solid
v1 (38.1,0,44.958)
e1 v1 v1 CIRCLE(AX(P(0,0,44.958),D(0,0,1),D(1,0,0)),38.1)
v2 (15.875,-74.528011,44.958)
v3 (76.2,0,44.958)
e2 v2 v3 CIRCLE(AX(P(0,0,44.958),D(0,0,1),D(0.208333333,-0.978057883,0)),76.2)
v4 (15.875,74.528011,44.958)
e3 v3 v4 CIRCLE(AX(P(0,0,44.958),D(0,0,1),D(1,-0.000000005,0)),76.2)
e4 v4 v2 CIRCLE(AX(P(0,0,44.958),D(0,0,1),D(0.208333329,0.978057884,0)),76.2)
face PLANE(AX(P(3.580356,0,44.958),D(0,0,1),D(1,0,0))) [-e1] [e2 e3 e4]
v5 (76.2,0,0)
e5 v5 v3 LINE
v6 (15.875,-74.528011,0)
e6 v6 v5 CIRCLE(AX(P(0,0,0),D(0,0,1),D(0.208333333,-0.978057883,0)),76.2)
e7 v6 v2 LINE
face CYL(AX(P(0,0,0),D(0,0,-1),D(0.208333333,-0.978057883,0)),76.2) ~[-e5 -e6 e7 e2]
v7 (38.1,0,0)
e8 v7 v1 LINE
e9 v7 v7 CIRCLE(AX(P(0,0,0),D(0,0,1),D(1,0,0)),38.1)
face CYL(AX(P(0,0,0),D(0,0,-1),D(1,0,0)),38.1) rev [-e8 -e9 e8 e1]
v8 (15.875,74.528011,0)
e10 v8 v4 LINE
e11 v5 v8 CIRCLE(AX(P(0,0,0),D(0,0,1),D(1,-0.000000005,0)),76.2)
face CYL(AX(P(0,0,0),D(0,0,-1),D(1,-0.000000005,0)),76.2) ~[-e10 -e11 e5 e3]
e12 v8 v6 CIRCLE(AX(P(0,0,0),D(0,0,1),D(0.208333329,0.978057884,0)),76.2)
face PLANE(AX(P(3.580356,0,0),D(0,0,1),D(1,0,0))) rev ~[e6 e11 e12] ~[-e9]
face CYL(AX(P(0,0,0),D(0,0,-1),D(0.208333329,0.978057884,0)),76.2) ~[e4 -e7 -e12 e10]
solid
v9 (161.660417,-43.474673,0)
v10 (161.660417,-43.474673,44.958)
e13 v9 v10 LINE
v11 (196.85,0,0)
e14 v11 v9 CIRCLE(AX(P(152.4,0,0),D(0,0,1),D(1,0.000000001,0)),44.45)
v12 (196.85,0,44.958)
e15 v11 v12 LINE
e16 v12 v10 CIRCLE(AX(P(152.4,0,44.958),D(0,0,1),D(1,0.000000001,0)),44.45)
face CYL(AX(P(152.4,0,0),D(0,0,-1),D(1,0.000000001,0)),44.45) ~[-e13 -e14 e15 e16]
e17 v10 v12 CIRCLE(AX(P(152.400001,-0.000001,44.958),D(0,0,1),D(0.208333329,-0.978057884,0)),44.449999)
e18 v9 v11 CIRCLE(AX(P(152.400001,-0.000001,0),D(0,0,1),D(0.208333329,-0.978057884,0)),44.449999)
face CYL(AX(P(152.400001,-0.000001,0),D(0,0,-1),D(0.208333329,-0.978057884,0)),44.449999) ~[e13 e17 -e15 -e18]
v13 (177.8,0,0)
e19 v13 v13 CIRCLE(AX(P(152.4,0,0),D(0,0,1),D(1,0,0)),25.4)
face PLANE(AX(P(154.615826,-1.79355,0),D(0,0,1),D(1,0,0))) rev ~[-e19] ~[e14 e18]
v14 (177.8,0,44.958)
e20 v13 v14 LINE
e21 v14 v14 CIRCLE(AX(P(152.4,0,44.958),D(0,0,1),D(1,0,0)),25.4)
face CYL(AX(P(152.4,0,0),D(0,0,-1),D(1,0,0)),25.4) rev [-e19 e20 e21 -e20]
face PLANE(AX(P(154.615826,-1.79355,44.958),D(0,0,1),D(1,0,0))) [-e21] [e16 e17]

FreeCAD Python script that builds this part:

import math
import FreeCAD as App
import Part
import Sketcher
Q = App.Units.Quantity

doc = App.newDocument("Part")
body = doc.addObject("PartDesign::Body", "Body")
body.AllowCompound = True

sketch1 = body.newObject("Sketcher::SketchObject", "Sketch")
sketch1.AttachmentSupport = (doc.getObject("XY_Plane"), [""])
sketch1.MapMode = "FlatFace"
sketch1.addGeometry(Part.ArcOfCircle(Part.Circle(App.Vector(0, 0, 0), App.Vector(0, 0, 1), 76), math.radians(-78), math.radians(0)), False)
sketch1.addGeometry(Part.ArcOfCircle(Part.Circle(App.Vector(0, 0, 0), App.Vector(0, 0, 1), 76), math.radians(0), math.radians(78)), False)
sketch1.addGeometry(Part.ArcOfCircle(Part.Circle(App.Vector(0, 0, 0), App.Vector(0, 0, 1), 76), math.radians(78), math.radians(282)), False)
sketch1.addGeometry(Part.Circle(App.Vector(0, 0, 0), App.Vector(0, 0, 1), 38), False)
sketch1.addGeometry(Part.ArcOfCircle(Part.Circle(App.Vector(152, 0, 0), App.Vector(0, 0, 1), 44), math.radians(0), math.radians(282)), False)
sketch1.addGeometry(Part.ArcOfCircle(Part.Circle(App.Vector(152, 0, 0), App.Vector(0, 0, 1), 44), math.radians(-78), math.radians(0)), False)
sketch1.addGeometry(Part.Circle(App.Vector(152, 0, 0), App.Vector(0, 0, 1), 25), False)
sketch1.addConstraint(Sketcher.Constraint("Tangent", 0, 2, 1, 1))
sketch1.addConstraint(Sketcher.Constraint("Tangent", 1, 2, 2, 1))
sketch1.addConstraint(Sketcher.Constraint("Tangent", 2, 2, 0, 1))
sketch1.addConstraint(Sketcher.Constraint("Tangent", 4, 1, 5, 2))
sketch1.addConstraint(Sketcher.Constraint("Coincident", 5, 1, 4, 2))
sketch1.addConstraint(Sketcher.Constraint("Coincident", 0, 3, -1, 1))
sketch1.addConstraint(Sketcher.Constraint("Coincident", 3, 3, -1, 1))
sketch1.addConstraint(Sketcher.Constraint("Coincident", 6, 3, 4, 3))
sketch1.addConstraint(Sketcher.Constraint("PointOnObject", 4, 3, -1))
sketch1.addConstraint(Sketcher.Constraint("PointOnObject", 0, 2, -1))
sketch1.addConstraint(Sketcher.Constraint("PointOnObject", 4, 1, -1))
sketch1.addConstraint(Sketcher.Constraint("Vertical", 1, 2, 2, 2))
sketch1.addConstraint(Sketcher.Constraint("Diameter", 3, Q("3 in")))
sketch1.addConstraint(Sketcher.Constraint("Diameter", 6, Q("2 in")))
sketch1.addConstraint(Sketcher.Constraint("Radius", 0, Q("3 in")))
sketch1.addConstraint(Sketcher.Constraint("Radius", 4, Q("1.75 in")))
sketch1.addConstraint(Sketcher.Constraint("DistanceX", -1, 1, 4, 3, Q("6 in")))
sketch1.addConstraint(Sketcher.Constraint("DistanceX", -1, 1, 1, 2, Q("0.625 in")))
sketch1.addConstraint(Sketcher.Constraint("DistanceX", -1, 1, 5, 1, Q("161.660417 mm")))
pad1 = body.newObject("PartDesign::Pad", "Pad")
pad1.Profile = sketch1
pad1.Length = Q("1.77 in")

doc.recompute()
